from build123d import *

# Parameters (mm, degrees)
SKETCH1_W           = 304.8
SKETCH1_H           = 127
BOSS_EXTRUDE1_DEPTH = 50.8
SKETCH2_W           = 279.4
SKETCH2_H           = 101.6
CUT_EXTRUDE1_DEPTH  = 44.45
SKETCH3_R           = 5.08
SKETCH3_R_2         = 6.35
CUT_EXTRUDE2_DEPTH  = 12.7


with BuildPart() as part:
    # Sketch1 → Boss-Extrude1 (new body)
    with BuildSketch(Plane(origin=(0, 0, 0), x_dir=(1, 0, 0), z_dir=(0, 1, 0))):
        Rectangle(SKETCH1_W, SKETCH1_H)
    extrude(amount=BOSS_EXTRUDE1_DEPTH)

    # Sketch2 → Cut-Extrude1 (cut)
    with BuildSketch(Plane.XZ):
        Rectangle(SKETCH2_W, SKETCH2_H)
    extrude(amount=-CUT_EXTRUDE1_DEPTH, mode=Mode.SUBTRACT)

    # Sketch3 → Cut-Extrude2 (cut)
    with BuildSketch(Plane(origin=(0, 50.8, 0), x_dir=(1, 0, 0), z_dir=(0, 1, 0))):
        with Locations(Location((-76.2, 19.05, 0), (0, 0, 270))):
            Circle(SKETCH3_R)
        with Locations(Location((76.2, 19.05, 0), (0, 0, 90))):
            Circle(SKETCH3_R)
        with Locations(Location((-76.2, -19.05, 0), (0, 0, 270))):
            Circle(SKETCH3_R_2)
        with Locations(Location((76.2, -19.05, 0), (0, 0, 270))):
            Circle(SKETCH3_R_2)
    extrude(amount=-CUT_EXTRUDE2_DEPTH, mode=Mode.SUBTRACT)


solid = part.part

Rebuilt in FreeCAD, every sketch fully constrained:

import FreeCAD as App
import Part
import Sketcher

V = App.Vector
Q = App.Units.Quantity


def add_polygon(sketch, points):
    """Adds a closed chain of lines whose ends are joined by coincident constraints."""
    first, n = sketch.GeometryCount, len(points)
    for a, b in zip(points, points[1:] + points[:1]):
        sketch.addGeometry(Part.LineSegment(App.Vector(*a, 0), App.Vector(*b, 0)), False)
    for i in range(n):
        sketch.addConstraint(Sketcher.Constraint("Coincident", first + i, 2, first + (i + 1) % n, 1))

doc = App.newDocument("Part")
params = doc.addObject("Spreadsheet::Sheet", "Params")
for row, (alias, value) in enumerate([
    ("sketch1_width", "12 in"),
    ("sketch1_height", "5 in"),
    ("pad1_length", "2 in"),
    ("sketch2_width", "11 in"),
    ("sketch2_height", "4 in"),
    ("pocket1_length", "1.75 in"),
    ("sketch3_diameter", "0.4 in"),
    ("sketch3_diameter2", "0.5 in"),
    ("pocket2_length", "0.5 in"),
], start=1):
    params.set(f"A{row}", alias)
    params.set(f"B{row}", "=" + value)
    params.setAlias(f"B{row}", alias)

body = doc.addObject("PartDesign::Body", "Body")

sketch1 = doc.addObject("Sketcher::SketchObject", "Sketch")
body.addObject(sketch1)
sketch1.AttachmentSupport = (doc.XZ_Plane, [""])
sketch1.MapMode = "FlatFace"
add_polygon(sketch1, [(-152.4, -63.5), (-152.4, 63.5), (152.4, 63.5), (152.4, -63.5)])
sketch1.addConstraint(Sketcher.Constraint("Vertical", 0))
sketch1.addConstraint(Sketcher.Constraint("Horizontal", 1))
sketch1.addConstraint(Sketcher.Constraint("Vertical", 2))
sketch1.addConstraint(Sketcher.Constraint("Horizontal", 3))
sketch1.addConstraint(Sketcher.Constraint("Symmetric", 0, 2, 2, 2, -1, 1))
sketch1.addConstraint(Sketcher.Constraint("DistanceX", 1, 1, 1, 2, Q("12 in")))
sketch1.addConstraint(Sketcher.Constraint("DistanceY", 0, 1, 0, 2, Q("5 in")))
sketch1.setExpression("Constraints[9]", "Params.sketch1_width")
sketch1.setExpression("Constraints[10]", "Params.sketch1_height")
pad1 = doc.addObject("PartDesign::Pad", "Pad")
body.addObject(pad1)
pad1.Profile = sketch1
pad1.setExpression("Length", "Params.pad1_length")
pad1.Reversed = True

sketch2 = doc.addObject("Sketcher::SketchObject", "Sketch001")
body.addObject(sketch2)
sketch2.AttachmentSupport = (doc.XZ_Plane, [""])
sketch2.MapMode = "FlatFace"
add_polygon(sketch2, [(-139.7, 50.8), (-139.7, -50.8), (139.7, -50.8), (139.7, 50.8)])
sketch2.addConstraint(Sketcher.Constraint("Vertical", 0))
sketch2.addConstraint(Sketcher.Constraint("Horizontal", 1))
sketch2.addConstraint(Sketcher.Constraint("Vertical", 2))
sketch2.addConstraint(Sketcher.Constraint("Horizontal", 3))
sketch2.addConstraint(Sketcher.Constraint("Symmetric", 0, 2, 2, 2, -1, 1))
sketch2.addConstraint(Sketcher.Constraint("DistanceX", 1, 1, 1, 2, Q("11 in")))
sketch2.addConstraint(Sketcher.Constraint("DistanceY", 0, 2, 0, 1, Q("4 in")))
sketch2.setExpression("Constraints[9]", "Params.sketch2_width")
sketch2.setExpression("Constraints[10]", "Params.sketch2_height")
pocket1 = doc.addObject("PartDesign::Pocket", "Pocket")
body.addObject(pocket1)
pocket1.Profile = sketch2
pocket1.setExpression("Length", "Params.pocket1_length")

sketch3 = doc.addObject("Sketcher::SketchObject", "Sketch002")
body.addObject(sketch3)
sketch3.AttachmentSupport = (doc.XZ_Plane, [""])
sketch3.MapMode = "FlatFace"
sketch3.AttachmentOffset = App.Placement(V(0, 0, -2 * 25.4), App.Rotation())
sketch3.addGeometry(Part.Circle(V(-76.2, -19.05, 0), V(0, 0, 1), 5.08), False)
sketch3.addGeometry(Part.Circle(V(76.2, -19.05, 0), V(0, 0, 1), 5.08), False)
sketch3.addGeometry(Part.Circle(V(-76.2, 19.05, 0), V(0, 0, 1), 6.35), False)
sketch3.addGeometry(Part.Circle(V(76.2, 19.05, 0), V(0, 0, 1), 6.35), False)
sketch3.addConstraint(Sketcher.Constraint("Equal", 0, 1))
sketch3.addConstraint(Sketcher.Constraint("Equal", 2, 3))
sketch3.addConstraint(Sketcher.Constraint("Symmetric", 1, 3, 2, 3, -1, 1))
sketch3.addConstraint(Sketcher.Constraint("Symmetric", 0, 3, 3, 3, -1, 1))
sketch3.addConstraint(Sketcher.Constraint("Symmetric", 0, 3, 1, 3, -2))
sketch3.addConstraint(Sketcher.Constraint("Diameter", 0, Q("0.4 in")))
sketch3.addConstraint(Sketcher.Constraint("Diameter", 2, Q("0.5 in")))
sketch3.addConstraint(Sketcher.Constraint("DistanceX", 0, 3, -1, 1, Q("3 in")))
sketch3.addConstraint(Sketcher.Constraint("DistanceY", 0, 3, 2, 3, Q("1.5 in")))
sketch3.setExpression("Constraints[5]", "Params.sketch3_diameter")
sketch3.setExpression("Constraints[6]", "Params.sketch3_diameter2")
pocket2 = doc.addObject("PartDesign::Pocket", "Pocket001")
body.addObject(pocket2)
pocket2.Profile = sketch3
pocket2.setExpression("Length", "Params.pocket2_length")
pocket2.Reversed = True

doc.recompute()
